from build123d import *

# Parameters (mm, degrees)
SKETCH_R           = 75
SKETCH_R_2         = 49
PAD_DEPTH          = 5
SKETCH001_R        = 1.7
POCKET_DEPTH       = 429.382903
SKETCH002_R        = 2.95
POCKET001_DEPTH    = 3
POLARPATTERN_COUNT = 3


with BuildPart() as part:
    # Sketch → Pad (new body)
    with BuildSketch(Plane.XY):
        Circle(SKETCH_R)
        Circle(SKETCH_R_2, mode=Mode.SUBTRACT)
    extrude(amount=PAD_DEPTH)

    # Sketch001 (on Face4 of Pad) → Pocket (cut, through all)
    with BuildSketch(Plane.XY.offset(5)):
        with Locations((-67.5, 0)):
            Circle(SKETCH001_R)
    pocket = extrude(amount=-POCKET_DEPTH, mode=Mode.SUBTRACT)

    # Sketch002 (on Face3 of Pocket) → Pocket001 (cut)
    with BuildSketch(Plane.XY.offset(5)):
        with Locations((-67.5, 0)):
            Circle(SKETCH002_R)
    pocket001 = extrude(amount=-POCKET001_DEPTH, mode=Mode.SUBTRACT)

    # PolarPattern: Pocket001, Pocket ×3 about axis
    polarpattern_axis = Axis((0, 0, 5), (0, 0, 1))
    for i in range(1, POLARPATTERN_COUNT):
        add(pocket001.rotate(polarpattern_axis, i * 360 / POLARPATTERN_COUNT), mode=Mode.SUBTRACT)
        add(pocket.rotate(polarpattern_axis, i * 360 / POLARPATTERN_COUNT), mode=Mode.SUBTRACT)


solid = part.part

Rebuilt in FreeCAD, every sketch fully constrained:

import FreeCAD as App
import Part
import Sketcher

V = App.Vector

doc = App.newDocument("Part")
params = doc.addObject("Spreadsheet::Sheet", "Params")
for row, (alias, value) in enumerate([
    ("sketch1_diameter", "150 mm"),
    ("sketch1_diameter2", "98 mm"),
    ("pad1_length", "5 mm"),
    ("sketch2_diameter", "3.4 mm"),
    ("sketch3_diameter", "5.9 mm"),
    ("pocket2_length", "3 mm"),
], start=1):
    params.set(f"A{row}", alias)
    params.set(f"B{row}", "=" + value)
    params.setAlias(f"B{row}", alias)

body = doc.addObject("PartDesign::Body", "Body")

# Sketch on XY plane
sketch1 = body.newObject("Sketcher::SketchObject", "Sketch")
sketch1.AttachmentSupport = (doc.getObject("XY_Plane"), [""])
sketch1.MapMode = "FlatFace"
sketch1.addGeometry([
    Part.Circle(V(0, 0, 0), V(0, 0, 1), 75),
    Part.Circle(V(0, 0, 0), V(0, 0, 1), 49),
], False)
sketch1.addConstraint([
    Sketcher.Constraint("Coincident", 0, 3, -1, 1),
    Sketcher.Constraint("Coincident", 1, 3, -1, 1),
    Sketcher.Constraint("Diameter", 0, 150.0),
    Sketcher.Constraint("Diameter", 1, 98.0),
])
sketch1.setExpression("Constraints[2]", "Params.sketch1_diameter")
sketch1.setExpression("Constraints[3]", "Params.sketch1_diameter2")
pad1 = body.newObject("PartDesign::Pad", "Pad")
pad1.Profile = sketch1
pad1.setExpression("Length", "Params.pad1_length")

# Sketch on XY plane
sketch2 = body.newObject("Sketcher::SketchObject", "Sketch001")
sketch2.AttachmentSupport = (doc.getObject("XY_Plane"), [""])
sketch2.MapMode = "FlatFace"
sketch2.AttachmentOffset = App.Placement(V(0, 0, 5), App.Rotation())
sketch2.addGeometry(Part.Circle(V(-67.5, 0, 0), V(0, 0, 1), 1.7), False)
sketch2.addConstraint([
    Sketcher.Constraint("PointOnObject", 0, 3, -1),
    Sketcher.Constraint("Diameter", 0, 3.4),
    Sketcher.Constraint("DistanceX", 0, 3, -1, 1, 67.5),
])
sketch2.setExpression("Constraints[1]", "Params.sketch2_diameter")
pocket1 = body.newObject("PartDesign::Pocket", "Pocket")
pocket1.Profile = sketch2
pocket1.Type = "ThroughAll"

# Sketch on XY plane
sketch3 = body.newObject("Sketcher::SketchObject", "Sketch002")
sketch3.AttachmentSupport = (doc.getObject("XY_Plane"), [""])
sketch3.MapMode = "FlatFace"
sketch3.AttachmentOffset = App.Placement(V(0, 0, 5), App.Rotation())
sketch3.addGeometry(Part.Circle(V(-67.5, 0, 0), V(0, 0, 1), 3), False)
sketch3.addConstraint([
    Sketcher.Constraint("PointOnObject", 0, 3, -1),
    Sketcher.Constraint("Diameter", 0, 5.9),
    Sketcher.Constraint("DistanceX", 0, 3, -1, 1, 67.5),
])
sketch3.setExpression("Constraints[1]", "Params.sketch3_diameter")
pocket2 = body.newObject("PartDesign::Pocket", "Pocket001")
pocket2.Profile = sketch3
pocket2.setExpression("Length", "Params.pocket2_length")
doc.recompute()

polarpattern = body.newObject("PartDesign::PolarPattern", "PolarPattern")
polarpattern.Originals = [pocket2, pocket1]
polarpattern.Axis = (doc.getObject("Z_Axis"), [""])
polarpattern.Angle = 360
polarpattern.Occurrences = 3
body.Tip = polarpattern

doc.recompute()
